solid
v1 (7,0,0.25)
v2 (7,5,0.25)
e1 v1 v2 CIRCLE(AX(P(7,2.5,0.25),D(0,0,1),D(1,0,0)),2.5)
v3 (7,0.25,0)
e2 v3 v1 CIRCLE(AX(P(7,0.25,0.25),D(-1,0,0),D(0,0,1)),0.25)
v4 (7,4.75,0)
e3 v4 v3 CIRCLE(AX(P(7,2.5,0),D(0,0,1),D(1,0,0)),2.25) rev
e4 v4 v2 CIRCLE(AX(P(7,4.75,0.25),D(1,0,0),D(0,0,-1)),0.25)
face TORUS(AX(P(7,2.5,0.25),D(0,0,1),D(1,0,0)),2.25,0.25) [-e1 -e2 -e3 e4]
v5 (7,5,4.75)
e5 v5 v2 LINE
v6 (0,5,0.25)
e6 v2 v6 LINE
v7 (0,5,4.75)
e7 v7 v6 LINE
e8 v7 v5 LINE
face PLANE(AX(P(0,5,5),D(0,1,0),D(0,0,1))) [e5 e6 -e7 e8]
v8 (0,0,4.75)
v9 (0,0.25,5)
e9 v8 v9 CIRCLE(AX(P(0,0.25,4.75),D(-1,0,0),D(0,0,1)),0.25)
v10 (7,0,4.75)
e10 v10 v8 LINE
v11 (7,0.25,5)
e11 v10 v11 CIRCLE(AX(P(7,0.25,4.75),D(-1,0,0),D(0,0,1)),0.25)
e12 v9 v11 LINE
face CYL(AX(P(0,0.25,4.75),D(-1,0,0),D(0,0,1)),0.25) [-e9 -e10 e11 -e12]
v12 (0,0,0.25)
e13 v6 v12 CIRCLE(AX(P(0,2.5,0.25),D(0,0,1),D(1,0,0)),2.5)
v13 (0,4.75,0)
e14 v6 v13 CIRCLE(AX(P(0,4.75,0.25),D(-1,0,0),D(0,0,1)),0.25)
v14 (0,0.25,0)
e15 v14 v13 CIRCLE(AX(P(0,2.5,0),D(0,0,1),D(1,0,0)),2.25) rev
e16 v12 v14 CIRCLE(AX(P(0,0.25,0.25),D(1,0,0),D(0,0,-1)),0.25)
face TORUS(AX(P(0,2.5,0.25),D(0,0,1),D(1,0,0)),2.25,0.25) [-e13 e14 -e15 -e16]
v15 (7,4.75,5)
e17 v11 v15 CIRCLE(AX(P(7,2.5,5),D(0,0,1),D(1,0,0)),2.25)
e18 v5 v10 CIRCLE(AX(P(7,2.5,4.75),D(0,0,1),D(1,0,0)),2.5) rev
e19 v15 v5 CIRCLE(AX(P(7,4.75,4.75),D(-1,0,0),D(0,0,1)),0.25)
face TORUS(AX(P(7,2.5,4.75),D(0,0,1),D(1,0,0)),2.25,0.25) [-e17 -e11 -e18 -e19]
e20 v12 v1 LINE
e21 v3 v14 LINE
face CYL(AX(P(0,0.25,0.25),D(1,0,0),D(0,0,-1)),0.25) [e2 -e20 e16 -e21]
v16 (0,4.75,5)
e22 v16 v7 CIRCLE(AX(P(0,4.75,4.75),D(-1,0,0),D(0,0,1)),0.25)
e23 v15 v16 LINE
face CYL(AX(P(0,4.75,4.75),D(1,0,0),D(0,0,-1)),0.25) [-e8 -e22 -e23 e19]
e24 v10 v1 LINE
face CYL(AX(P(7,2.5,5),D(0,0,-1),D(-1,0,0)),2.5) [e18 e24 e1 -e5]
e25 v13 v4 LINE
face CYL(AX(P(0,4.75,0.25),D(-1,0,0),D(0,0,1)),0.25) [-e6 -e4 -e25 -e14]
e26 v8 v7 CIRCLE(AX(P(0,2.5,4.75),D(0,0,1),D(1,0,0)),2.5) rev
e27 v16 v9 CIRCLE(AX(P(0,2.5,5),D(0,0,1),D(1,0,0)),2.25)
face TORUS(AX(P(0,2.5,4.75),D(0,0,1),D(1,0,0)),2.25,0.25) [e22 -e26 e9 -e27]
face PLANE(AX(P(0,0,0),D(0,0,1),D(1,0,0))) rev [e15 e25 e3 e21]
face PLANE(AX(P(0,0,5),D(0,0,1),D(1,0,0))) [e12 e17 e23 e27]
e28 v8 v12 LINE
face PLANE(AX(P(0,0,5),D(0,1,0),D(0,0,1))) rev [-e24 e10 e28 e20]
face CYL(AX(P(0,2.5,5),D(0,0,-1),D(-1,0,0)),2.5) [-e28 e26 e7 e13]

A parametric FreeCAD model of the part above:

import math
import FreeCAD as App
import Part
import Sketcher
from FreeCAD import Vector
Q = App.Units.Quantity


def edges_at(feature, points):
    """Names of the edges that pass closest to the given points."""
    edges = feature.Shape.Edges
    near = lambda p: min(range(len(edges)), key=lambda i: edges[i].distToShape(Part.Vertex(*p))[0])
    return sorted({f"Edge{near(p) + 1}" for p in points})

doc = App.newDocument("Part")
params = doc.addObject("Spreadsheet::Sheet", "Params")
for row, (alias, value) in enumerate([
    ("sketch1_radius", "2.5 mm"),
    ("sketch1_width", "7 mm"),
    ("pad1_length", "5 mm"),
    ("fillet_radius", "0.25 mm"),
], start=1):
    params.set(f"A{row}", alias)
    params.set(f"B{row}", "=" + value)
    params.setAlias(f"B{row}", alias)

body = doc.addObject("PartDesign::Body", "Body")

# Sketch on XY plane
sketch1 = doc.addObject("Sketcher::SketchObject", "Sketch")
body.addObject(sketch1)
sketch1.AttachmentSupport = (doc.XY_Plane, [""])
sketch1.MapMode = "FlatFace"
sketch1.addGeometry([
    Part.LineSegment(Vector(0, 0, 0), Vector(7, 0, 0)),  # 0
    Part.ArcOfCircle(Part.Circle(Vector(7, 2.5, 0), Vector(0, 0, 1), 2.5), math.radians(-90), math.radians(0)),  # 1
    Part.ArcOfCircle(Part.Circle(Vector(7, 2.5, 0), Vector(0, 0, 1), 2.5), math.radians(0), math.radians(90)),  # 2
    Part.LineSegment(Vector(7, 5, 0), Vector(0, 5, 0)),  # 3
    Part.ArcOfCircle(Part.Circle(Vector(0, 2.5, 0), Vector(0, 0, 1), 2.5), math.radians(90), math.radians(270)),  # 4
], False)
sketch1.addConstraint([
    Sketcher.Constraint("Tangent", 0, 2, 1, 1),
    Sketcher.Constraint("Tangent", 1, 2, 2, 1),
    Sketcher.Constraint("Tangent", 2, 2, 3, 1),
    Sketcher.Constraint("Tangent", 3, 2, 4, 1),
    Sketcher.Constraint("Tangent", 4, 2, 0, 1),
    Sketcher.Constraint("Horizontal", 0),
    Sketcher.Constraint("Horizontal", 3),
    Sketcher.Constraint("Coincident", 4, 2, -1, 1),
    Sketcher.Constraint("Equal", 1, 2),
    Sketcher.Constraint("Horizontal", 4, 3, 1, 2),
    Sketcher.Constraint("Radius", 1, Q("2.5 mm")),
    Sketcher.Constraint("DistanceX", 0, 1, 0, 2, Q("7 mm")),
])
sketch1.setExpression("Constraints[10]", "Params.sketch1_radius")
sketch1.setExpression("Constraints[11]", "Params.sketch1_width")
pad1 = doc.addObject("PartDesign::Pad", "Pad")
body.addObject(pad1)
pad1.Profile = sketch1
pad1.setExpression("Length", "Params.pad1_length")
doc.recompute()

fillet = doc.addObject("PartDesign::Fillet", "Fillet")
body.addObject(fillet)
fillet.Base = (pad1, edges_at(pad1, [
    (3.5, 0, 5),
    (9.5, 2.5, 2.5),
    (3.5, 5, 5),
    (-2.5, 2.5, 5),
    (3.5, 5, 0),
    (9.5, 2.5, 2.5),
    (3.5, 0, 0),
    (-2.5, 2.5, 0),
]))
fillet.setExpression("Radius", "Params.fillet_radius")

doc.recompute()
